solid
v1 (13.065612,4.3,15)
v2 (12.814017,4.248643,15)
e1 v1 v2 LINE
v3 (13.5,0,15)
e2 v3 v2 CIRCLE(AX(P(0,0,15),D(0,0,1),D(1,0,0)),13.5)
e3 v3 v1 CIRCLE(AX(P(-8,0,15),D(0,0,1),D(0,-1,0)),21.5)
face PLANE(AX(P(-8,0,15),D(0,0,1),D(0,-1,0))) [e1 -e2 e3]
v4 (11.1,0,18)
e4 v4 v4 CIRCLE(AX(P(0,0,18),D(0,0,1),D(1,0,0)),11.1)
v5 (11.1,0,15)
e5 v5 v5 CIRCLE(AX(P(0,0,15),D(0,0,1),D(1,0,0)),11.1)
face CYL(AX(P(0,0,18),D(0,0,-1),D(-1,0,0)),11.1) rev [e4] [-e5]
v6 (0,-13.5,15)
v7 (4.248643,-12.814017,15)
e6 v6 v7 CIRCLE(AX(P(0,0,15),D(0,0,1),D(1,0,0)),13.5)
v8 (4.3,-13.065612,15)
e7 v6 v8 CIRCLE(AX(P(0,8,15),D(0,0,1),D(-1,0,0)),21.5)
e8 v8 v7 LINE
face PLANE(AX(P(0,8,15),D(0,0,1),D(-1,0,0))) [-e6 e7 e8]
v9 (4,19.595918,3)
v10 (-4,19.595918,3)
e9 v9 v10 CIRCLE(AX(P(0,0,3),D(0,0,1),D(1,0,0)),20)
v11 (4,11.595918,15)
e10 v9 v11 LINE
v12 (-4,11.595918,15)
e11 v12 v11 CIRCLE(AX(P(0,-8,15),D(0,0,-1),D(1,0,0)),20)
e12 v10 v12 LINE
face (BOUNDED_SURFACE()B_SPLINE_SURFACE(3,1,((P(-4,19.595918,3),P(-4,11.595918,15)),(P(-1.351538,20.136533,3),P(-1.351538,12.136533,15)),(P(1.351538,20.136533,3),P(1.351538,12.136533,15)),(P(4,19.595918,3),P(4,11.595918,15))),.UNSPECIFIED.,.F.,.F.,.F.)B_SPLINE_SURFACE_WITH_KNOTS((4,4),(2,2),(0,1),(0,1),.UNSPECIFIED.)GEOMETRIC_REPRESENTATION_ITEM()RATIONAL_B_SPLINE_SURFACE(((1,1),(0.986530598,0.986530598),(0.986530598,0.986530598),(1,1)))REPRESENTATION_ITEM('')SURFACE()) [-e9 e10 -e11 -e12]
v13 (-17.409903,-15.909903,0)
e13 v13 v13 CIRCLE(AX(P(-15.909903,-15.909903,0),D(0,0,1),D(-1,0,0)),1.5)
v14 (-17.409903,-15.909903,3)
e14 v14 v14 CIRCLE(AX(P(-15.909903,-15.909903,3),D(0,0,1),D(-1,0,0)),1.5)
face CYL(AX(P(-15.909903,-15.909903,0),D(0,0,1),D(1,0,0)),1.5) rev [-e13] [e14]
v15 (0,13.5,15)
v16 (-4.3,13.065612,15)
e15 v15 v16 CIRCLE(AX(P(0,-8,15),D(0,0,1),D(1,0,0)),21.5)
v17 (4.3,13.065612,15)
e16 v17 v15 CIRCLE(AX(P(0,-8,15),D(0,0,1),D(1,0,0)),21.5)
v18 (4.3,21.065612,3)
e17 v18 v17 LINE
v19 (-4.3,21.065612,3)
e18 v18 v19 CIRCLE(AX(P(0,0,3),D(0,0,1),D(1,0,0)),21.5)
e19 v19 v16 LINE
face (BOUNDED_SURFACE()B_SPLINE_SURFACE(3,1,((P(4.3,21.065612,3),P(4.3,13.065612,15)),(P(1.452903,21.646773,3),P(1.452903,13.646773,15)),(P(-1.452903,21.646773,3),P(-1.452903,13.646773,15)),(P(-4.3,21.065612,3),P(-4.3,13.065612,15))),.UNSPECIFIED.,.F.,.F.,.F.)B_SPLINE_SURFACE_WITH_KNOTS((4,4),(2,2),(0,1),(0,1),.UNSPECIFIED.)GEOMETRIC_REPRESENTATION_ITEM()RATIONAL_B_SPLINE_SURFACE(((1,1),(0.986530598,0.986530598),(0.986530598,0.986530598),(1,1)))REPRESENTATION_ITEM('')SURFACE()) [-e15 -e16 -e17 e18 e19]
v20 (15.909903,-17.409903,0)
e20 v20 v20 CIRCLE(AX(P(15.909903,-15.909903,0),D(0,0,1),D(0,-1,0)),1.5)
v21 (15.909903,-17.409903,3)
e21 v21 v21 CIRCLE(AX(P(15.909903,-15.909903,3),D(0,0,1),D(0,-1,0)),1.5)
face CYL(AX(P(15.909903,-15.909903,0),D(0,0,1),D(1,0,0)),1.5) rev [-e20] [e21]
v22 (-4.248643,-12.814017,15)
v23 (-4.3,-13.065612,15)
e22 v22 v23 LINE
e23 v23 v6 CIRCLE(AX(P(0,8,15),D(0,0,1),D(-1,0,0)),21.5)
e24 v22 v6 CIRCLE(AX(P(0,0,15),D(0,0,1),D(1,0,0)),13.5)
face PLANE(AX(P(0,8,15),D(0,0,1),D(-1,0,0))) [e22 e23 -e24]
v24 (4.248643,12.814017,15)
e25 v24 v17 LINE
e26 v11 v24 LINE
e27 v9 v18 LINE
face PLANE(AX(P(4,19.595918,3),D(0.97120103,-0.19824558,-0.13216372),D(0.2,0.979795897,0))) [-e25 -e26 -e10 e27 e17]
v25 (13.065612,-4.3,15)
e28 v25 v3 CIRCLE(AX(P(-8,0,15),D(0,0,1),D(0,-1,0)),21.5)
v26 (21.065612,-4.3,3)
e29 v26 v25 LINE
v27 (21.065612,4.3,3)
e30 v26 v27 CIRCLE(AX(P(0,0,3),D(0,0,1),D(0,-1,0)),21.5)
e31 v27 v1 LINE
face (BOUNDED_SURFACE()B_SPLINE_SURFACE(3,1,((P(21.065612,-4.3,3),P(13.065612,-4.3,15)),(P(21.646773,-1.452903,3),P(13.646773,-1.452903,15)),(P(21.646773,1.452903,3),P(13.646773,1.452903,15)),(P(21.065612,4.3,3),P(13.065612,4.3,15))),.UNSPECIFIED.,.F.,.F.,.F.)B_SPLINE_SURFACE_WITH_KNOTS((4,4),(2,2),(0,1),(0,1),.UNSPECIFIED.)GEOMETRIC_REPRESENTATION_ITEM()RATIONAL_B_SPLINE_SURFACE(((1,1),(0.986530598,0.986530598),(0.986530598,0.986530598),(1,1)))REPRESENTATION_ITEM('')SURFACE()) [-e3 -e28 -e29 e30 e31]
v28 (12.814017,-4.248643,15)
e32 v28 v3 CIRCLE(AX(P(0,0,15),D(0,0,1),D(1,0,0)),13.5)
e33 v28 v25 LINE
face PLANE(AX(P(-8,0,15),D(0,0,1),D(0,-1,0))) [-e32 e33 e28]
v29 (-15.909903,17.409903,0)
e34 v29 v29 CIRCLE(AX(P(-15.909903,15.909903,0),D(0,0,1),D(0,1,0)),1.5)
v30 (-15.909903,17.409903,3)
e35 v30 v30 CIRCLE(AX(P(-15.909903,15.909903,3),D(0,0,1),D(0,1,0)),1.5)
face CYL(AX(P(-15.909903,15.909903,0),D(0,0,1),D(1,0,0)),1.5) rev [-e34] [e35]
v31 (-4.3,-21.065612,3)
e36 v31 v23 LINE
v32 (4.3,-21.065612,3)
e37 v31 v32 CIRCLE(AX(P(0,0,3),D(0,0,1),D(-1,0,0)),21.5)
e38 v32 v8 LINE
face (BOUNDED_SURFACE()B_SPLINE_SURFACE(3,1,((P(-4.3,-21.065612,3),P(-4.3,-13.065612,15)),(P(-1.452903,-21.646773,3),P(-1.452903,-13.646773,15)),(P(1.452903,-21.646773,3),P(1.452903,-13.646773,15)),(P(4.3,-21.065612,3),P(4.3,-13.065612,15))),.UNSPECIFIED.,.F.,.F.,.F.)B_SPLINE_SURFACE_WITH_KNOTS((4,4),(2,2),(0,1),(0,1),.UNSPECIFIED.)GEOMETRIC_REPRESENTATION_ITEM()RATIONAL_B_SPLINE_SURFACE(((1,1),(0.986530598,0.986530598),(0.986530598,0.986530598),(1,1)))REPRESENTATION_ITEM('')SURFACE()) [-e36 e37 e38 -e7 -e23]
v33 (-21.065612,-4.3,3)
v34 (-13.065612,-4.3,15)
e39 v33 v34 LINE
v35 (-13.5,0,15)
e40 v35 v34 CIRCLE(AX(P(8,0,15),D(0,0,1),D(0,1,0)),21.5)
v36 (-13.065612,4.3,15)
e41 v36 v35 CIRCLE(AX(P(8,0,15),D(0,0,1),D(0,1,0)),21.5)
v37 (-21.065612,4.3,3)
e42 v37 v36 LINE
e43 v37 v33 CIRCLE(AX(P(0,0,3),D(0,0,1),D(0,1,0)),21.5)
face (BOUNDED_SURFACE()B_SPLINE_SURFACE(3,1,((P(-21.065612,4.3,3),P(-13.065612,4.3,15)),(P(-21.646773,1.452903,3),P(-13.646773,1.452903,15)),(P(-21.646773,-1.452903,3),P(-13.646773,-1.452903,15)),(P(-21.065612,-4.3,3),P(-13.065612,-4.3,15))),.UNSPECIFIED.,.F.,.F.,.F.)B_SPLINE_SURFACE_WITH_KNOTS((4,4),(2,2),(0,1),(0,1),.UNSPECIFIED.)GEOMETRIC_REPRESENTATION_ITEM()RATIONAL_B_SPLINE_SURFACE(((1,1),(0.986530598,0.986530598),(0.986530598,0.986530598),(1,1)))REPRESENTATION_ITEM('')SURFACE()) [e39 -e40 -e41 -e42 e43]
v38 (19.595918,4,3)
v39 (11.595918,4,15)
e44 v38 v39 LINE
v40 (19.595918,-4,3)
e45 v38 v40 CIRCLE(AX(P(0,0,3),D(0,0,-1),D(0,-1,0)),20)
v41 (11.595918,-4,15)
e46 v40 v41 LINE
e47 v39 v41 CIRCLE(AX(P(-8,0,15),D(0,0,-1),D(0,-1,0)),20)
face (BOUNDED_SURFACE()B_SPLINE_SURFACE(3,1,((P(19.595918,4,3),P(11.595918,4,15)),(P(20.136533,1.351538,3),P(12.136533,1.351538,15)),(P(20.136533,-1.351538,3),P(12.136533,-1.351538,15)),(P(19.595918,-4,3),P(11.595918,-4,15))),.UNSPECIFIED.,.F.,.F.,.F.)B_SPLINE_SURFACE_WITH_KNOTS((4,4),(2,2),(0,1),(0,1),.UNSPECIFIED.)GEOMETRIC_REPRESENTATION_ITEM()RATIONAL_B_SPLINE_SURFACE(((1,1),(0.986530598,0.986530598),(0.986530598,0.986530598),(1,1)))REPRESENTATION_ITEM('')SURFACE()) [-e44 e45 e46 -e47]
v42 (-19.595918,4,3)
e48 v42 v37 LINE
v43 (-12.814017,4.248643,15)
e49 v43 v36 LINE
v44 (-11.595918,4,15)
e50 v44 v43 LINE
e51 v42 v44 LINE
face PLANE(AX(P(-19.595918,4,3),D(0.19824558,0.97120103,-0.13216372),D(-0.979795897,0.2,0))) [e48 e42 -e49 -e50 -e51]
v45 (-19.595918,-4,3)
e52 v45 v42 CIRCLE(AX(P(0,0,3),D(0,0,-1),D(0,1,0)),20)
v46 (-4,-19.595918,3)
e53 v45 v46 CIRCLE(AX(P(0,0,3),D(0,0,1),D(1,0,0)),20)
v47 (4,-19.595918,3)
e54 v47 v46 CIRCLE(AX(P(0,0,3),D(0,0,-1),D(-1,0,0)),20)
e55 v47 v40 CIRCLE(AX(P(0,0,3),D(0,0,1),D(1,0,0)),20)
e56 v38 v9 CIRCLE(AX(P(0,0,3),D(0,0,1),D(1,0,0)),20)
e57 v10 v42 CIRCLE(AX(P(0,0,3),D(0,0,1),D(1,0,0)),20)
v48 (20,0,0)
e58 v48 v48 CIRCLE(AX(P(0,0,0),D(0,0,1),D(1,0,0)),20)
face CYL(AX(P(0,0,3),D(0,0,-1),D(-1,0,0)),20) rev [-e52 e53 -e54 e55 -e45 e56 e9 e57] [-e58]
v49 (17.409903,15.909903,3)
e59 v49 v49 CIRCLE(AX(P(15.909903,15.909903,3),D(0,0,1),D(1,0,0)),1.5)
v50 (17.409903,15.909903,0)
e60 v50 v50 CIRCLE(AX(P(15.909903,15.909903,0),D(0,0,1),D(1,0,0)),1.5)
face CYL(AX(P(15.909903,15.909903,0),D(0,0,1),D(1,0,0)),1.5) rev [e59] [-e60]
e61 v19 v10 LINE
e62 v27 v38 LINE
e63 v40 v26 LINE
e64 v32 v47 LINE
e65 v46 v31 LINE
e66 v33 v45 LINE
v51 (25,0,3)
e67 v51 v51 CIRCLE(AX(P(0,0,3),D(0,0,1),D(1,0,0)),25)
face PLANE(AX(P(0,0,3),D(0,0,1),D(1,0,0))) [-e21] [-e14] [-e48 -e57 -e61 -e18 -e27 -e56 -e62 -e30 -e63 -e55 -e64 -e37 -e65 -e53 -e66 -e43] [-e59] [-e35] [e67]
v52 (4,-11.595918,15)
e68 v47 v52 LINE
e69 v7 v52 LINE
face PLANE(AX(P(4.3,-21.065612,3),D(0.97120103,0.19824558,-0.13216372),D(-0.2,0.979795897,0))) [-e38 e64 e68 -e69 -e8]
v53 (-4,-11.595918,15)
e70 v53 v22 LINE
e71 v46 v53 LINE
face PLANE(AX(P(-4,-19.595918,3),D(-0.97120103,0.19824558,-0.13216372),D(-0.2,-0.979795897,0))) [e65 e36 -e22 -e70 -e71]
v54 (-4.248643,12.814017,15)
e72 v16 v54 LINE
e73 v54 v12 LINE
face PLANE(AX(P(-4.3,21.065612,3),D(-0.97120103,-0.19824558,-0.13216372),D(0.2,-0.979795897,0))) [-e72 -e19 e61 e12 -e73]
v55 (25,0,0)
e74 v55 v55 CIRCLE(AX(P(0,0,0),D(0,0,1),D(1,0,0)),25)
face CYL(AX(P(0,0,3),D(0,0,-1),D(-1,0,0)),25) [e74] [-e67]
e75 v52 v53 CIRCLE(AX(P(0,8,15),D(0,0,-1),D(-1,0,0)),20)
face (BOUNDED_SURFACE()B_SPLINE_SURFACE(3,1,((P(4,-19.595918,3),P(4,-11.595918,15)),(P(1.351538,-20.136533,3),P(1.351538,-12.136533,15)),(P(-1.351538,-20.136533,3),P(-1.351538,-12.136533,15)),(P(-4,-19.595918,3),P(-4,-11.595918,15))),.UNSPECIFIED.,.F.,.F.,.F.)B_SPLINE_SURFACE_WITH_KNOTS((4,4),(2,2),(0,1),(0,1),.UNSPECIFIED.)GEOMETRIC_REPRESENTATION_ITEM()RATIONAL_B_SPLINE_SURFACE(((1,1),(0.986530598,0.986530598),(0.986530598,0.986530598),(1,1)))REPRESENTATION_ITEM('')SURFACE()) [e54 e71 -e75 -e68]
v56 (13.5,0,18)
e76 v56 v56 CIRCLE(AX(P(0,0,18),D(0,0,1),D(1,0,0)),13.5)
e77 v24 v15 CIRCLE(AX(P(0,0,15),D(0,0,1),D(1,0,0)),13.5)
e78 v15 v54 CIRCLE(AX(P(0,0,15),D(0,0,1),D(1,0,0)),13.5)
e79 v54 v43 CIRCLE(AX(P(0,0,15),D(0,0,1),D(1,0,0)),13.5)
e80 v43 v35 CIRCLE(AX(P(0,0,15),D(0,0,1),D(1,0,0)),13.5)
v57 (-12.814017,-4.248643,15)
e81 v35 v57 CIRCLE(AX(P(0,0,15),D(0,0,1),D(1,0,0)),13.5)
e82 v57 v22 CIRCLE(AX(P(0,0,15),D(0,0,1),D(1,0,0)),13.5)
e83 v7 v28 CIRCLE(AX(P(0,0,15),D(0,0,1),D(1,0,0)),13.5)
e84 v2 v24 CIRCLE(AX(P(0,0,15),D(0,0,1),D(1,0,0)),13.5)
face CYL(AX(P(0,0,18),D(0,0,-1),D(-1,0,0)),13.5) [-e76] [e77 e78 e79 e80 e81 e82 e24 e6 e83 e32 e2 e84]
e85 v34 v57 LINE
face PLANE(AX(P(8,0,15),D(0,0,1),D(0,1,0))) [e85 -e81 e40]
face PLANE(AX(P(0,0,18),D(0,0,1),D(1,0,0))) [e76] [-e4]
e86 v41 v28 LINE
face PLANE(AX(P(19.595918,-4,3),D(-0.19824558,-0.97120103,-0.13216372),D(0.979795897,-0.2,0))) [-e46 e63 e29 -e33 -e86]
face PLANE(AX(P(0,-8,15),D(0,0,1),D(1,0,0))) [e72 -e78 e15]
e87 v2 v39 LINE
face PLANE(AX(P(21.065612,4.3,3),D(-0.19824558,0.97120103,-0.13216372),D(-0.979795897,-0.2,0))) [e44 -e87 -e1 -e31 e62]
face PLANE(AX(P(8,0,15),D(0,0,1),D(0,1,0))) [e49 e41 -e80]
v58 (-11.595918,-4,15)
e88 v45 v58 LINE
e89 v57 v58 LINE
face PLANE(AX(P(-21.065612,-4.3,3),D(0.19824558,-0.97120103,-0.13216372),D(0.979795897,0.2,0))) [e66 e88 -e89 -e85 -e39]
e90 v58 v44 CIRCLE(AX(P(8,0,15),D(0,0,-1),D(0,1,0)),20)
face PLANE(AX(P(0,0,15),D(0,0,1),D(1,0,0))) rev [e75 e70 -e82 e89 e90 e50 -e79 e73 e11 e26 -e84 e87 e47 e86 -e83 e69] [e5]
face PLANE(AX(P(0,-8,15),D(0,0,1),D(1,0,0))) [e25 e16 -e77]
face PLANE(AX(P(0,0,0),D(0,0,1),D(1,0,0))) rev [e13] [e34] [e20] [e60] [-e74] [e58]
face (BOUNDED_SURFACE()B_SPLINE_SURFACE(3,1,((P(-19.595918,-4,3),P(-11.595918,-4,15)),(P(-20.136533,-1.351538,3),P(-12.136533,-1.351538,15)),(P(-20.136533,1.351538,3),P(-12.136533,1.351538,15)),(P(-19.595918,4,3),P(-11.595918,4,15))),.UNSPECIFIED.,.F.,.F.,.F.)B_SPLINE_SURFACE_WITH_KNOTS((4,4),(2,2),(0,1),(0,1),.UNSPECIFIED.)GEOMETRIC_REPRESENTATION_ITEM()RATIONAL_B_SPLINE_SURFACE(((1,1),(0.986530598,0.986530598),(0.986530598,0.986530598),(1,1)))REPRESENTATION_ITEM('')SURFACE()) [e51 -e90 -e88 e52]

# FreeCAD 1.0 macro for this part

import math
import FreeCAD as App
import Part
import Sketcher
from FreeCAD import Vector

doc = App.newDocument("Part")
body = doc.addObject("PartDesign::Body", "Body")

# Sketch on XY plane
sketch1 = body.newObject("Sketcher::SketchObject", "Sketch")
sketch1.AttachmentSupport = (doc.getObject("XY_Plane"), [""])
sketch1.MapMode = "FlatFace"
sketch1.addGeometry([
    Part.Circle(Vector(0, 0, 0), Vector(0, 0, 1), 25),
    Part.Circle(Vector(0, 0, 0), Vector(0, 0, 1), 20),
], False)
sketch1.addConstraint([
    Sketcher.Constraint("Coincident", 0, 3, -1, 1),
    Sketcher.Constraint("Coincident", 1, 3, -1, 1),
    Sketcher.Constraint("Diameter", 0, 50.0),
    Sketcher.Constraint("Diameter", 1, 40.0),
])
pad1 = body.newObject("PartDesign::Pad", "Pad")
pad1.Profile = sketch1
pad1.Length = 3
body2 = doc.addObject("PartDesign::Body", "Body001")

# Sketch on XY plane
sketch2 = body2.newObject("Sketcher::SketchObject", "Sketch001")
sketch2.AttachmentSupport = (doc.getObject("XY_Plane001"), [""])
sketch2.MapMode = "FlatFace"
sketch2.AttachmentOffset = App.Placement(Vector(0, 0, 15), App.Rotation())
sketch2.addGeometry([
    Part.Circle(Vector(0, 0, 0), Vector(0, 0, 1), 14),
    Part.Circle(Vector(0, 0, 0), Vector(0, 0, 1), 11),
], False)
sketch2.addConstraint([
    Sketcher.Constraint("Coincident", 0, 3, -1, 1),
    Sketcher.Constraint("Coincident", 1, 3, -1, 1),
    Sketcher.Constraint("Diameter", 0, 27.0),
    Sketcher.Constraint("Diameter", 1, 22.2),
])
pad2 = body2.newObject("PartDesign::Pad", "Pad001")
pad2.Profile = sketch2
pad2.Length = 3
body.AllowCompound = True
doc.recompute()

boolean = body.newObject("PartDesign::Boolean", "Boolean")
boolean.Type = "Fuse"
boolean.addObjects([body2])

# Sketch on XY plane
sketch3 = body.newObject("Sketcher::SketchObject", "Sketch002")
sketch3.AttachmentSupport = (doc.getObject("XY_Plane"), [""])
sketch3.MapMode = "FlatFace"
sketch3.AttachmentOffset = App.Placement(Vector(0, 0, 3), App.Rotation())
sketch3.addGeometry([
    Part.LineSegment(Vector(-4.3, 21.1, 0), Vector(-4, 19.6, 0)),
    Part.ArcOfCircle(Part.Circle(Vector(0, 0, 0), Vector(0, 0, 1), 20), math.radians(78), math.radians(102)),
    Part.LineSegment(Vector(4, 19.6, 0), Vector(4.3, 21.1, 0)),
    Part.ArcOfCircle(Part.Circle(Vector(0, 0, 0), Vector(0, 0, 1), 21.5), math.radians(78), math.radians(102)),
], False)
sketch3.addConstraint([
    Sketcher.Constraint("Coincident", 0, 2, 1, 2),
    Sketcher.Constraint("Coincident", 1, 1, 2, 1),
    Sketcher.Constraint("Coincident", 2, 2, 3, 1),
    Sketcher.Constraint("Coincident", 3, 2, 0, 1),
    Sketcher.Constraint("Coincident", 1, 3, -1, 1),
    Sketcher.Constraint("Coincident", 3, 3, -1, 1),
    Sketcher.Constraint("Horizontal", 0, 2, 1, 1),
    Sketcher.Constraint("Horizontal", 2, 2, 3, 2),
    Sketcher.Constraint("Radius", 1, 20.0),
    Sketcher.Constraint("Radius", 3, 21.5),
    Sketcher.Constraint("DistanceX", 0, 2, -1, 1, 4.0),
    Sketcher.Constraint("DistanceX", -1, 1, 2, 2, 4.3),
])

# Sketch on an angled plane
sketch4 = body.newObject("Sketcher::SketchObject", "Sketch003")
sketch4.Placement = App.Placement(Vector(0, 16.269231, 10.846154), App.Rotation(Vector(0, 0.554700196, -0.832050294), Vector(0.999999999, 0, 0), Vector(0, -0.832050294, -0.554700196), "ZXY"))
sketch4.addGeometry(Part.LineSegment(Vector(9, 0, 0), Vector(-5, 0, 0)), False)
sketch4.addConstraint([
    Sketcher.Constraint("Horizontal", 0),
    Sketcher.Constraint("PointOnObject", 0, 1, -1),
    Sketcher.Constraint("DistanceX", 0, 2, -1, 1, 4.992302),
    Sketcher.Constraint("DistanceX", 0, 2, 0, 1, 14.422205),
])
doc.recompute()

additivepipe = body.newObject("PartDesign::AdditivePipe", "AdditivePipe")
additivepipe.Profile = sketch3
additivepipe.Spine = (sketch4, ["Edge1"])
doc.recompute()

polarpattern = body.newObject("PartDesign::PolarPattern", "PolarPattern")
polarpattern.Originals = [additivepipe]
polarpattern.Axis = (doc.getObject("Z_Axis"), [""])
polarpattern.Angle = 360
polarpattern.Occurrences = 4
body.Tip = polarpattern

# Sketch on XY plane
sketch5 = body.newObject("Sketcher::SketchObject", "Sketch004")
sketch5.AttachmentSupport = (doc.getObject("XY_Plane"), [""])
sketch5.MapMode = "FlatFace"
sketch5.AttachmentOffset = App.Placement(Vector(0, 0, 3), App.Rotation())
sketch5.addGeometry(Part.Circle(Vector(15.9, 15.9, 0), Vector(0, 0, 1), 1.5), False)
sketch5.addConstraint([
    Sketcher.Constraint("Diameter", 0, 3.0),
    Sketcher.Constraint("DistanceX", -1, 1, 0, 3, 15.909903),
    Sketcher.Constraint("DistanceY", -1, 1, 0, 3, 15.909903),
])
pocket1 = body.newObject("PartDesign::Pocket", "Pocket")
pocket1.Profile = sketch5
pocket1.Type = "ThroughAll"
doc.recompute()

polarpattern2 = body.newObject("PartDesign::PolarPattern", "PolarPattern001")
polarpattern2.Originals = [pocket1]
polarpattern2.Axis = (doc.getObject("Z_Axis"), [""])
polarpattern2.Angle = 360
polarpattern2.Occurrences = 4
body.Tip = polarpattern2

doc.recompute()
